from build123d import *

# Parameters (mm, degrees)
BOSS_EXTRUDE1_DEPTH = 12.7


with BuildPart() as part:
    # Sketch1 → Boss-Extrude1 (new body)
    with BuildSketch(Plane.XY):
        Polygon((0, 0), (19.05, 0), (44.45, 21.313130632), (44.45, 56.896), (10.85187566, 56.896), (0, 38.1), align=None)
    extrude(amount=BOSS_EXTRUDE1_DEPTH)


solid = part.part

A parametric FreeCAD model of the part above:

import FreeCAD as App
import Part
import Sketcher
from FreeCAD import Vector
Q = App.Units.Quantity


def add_polygon(sketch, points):
    """Adds a closed chain of lines whose ends are joined by coincident constraints."""
    first, n = sketch.GeometryCount, len(points)
    for a, b in zip(points, points[1:] + points[:1]):
        sketch.addGeometry(Part.LineSegment(App.Vector(*a, 0), App.Vector(*b, 0)), False)
    for i in range(n):
        sketch.addConstraint(Sketcher.Constraint("Coincident", first + i, 2, first + (i + 1) % n, 1))

doc = App.newDocument("Part")
params = doc.addObject("Spreadsheet::Sheet", "Params")
for row, (alias, value) in enumerate([
    ("sketch1_height", "1.5 in"),
    ("sketch1_width", "0.75 in"),
    ("pad1_length", "0.5 in"),
], start=1):
    params.set(f"A{row}", alias)
    params.set(f"B{row}", "=" + value)
    params.setAlias(f"B{row}", alias)

body = doc.addObject("PartDesign::Body", "Body")

# Sketch on XY plane
sketch1 = body.newObject("Sketcher::SketchObject", "Sketch")
sketch1.AttachmentSupport = (doc.getObject("XY_Plane"), [""])
sketch1.MapMode = "FlatFace"
add_polygon(sketch1, [(0, 0), (19, 0), (44, 21), (44, 57), (11, 57), (0, 38)])  # lines 0-5
sketch1.addConstraint([
    Sketcher.Constraint("Horizontal", 0),
    Sketcher.Constraint("Vertical", 2),
    Sketcher.Constraint("Horizontal", 3),
    Sketcher.Constraint("Vertical", 5),
    Sketcher.Constraint("Coincident", 5, 2, -1, 1),
    Sketcher.Constraint("DistanceY", 5, 2, 5, 1, Q("1.5 in")),
    Sketcher.Constraint("Angle", 1, Q("40 deg")),
    Sketcher.Constraint("Angle", 4, Q("-120 deg")),
    Sketcher.Constraint("DistanceX", 0, 2, 1, 2, Q("1 in")),
    Sketcher.Constraint("DistanceX", 0, 1, 0, 2, Q("0.75 in")),
    Sketcher.Constraint("DistanceY", -1, 1, 2, 2, Q("2.24 in")),
])
sketch1.setExpression("Constraints[11]", "Params.sketch1_height")
sketch1.setExpression("Constraints[15]", "Params.sketch1_width")
pad1 = body.newObject("PartDesign::Pad", "Pad")
pad1.Profile = sketch1
pad1.setExpression("Length", "Params.pad1_length")

doc.recompute()
